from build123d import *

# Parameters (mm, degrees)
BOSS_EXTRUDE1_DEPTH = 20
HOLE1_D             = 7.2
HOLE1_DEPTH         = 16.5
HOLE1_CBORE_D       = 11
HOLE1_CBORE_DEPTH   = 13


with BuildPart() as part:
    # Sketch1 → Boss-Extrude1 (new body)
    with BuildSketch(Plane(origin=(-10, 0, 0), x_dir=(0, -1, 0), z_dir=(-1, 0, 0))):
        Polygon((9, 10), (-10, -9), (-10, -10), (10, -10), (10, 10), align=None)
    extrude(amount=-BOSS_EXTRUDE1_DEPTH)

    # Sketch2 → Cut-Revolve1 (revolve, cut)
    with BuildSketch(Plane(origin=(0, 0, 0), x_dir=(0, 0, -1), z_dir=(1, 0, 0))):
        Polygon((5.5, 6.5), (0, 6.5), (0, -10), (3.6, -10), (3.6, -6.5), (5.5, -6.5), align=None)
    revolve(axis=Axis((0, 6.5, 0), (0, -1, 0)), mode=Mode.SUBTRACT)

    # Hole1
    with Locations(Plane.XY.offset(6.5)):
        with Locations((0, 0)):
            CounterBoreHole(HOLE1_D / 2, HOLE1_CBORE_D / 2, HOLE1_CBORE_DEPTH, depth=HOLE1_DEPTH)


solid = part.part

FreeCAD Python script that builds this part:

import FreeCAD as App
import Part
import Sketcher


def add_polygon(sketch, points):
    """Adds a closed chain of lines whose ends are joined by coincident constraints."""
    first, n = sketch.GeometryCount, len(points)
    for a, b in zip(points, points[1:] + points[:1]):
        sketch.addGeometry(Part.LineSegment(App.Vector(*a, 0), App.Vector(*b, 0)), False)
    for i in range(n):
        sketch.addConstraint(Sketcher.Constraint("Coincident", first + i, 2, first + (i + 1) % n, 1))

doc = App.newDocument("Part")
body = doc.addObject("PartDesign::Body", "Body")

# Sketch on YZ plane
sketch1 = doc.addObject("Sketcher::SketchObject", "Sketch")
body.addObject(sketch1)
sketch1.AttachmentSupport = (doc.YZ_Plane, [""])
sketch1.MapMode = "FlatFace"
sketch1.AttachmentOffset = App.Placement(App.Vector(0, 0, -10), App.Rotation())
add_polygon(sketch1, [(-9, 10), (10, -9), (10, -10), (-10, -10), (-10, 10)])  # lines 0-4
sketch1.addConstraint([
    Sketcher.Constraint("Vertical", 1),
    Sketcher.Constraint("Horizontal", 2),
    Sketcher.Constraint("Vertical", 3),
    Sketcher.Constraint("Horizontal", 4),
    Sketcher.Constraint("Symmetric", 1, 2, 3, 2, -1, 1),
    Sketcher.Constraint("Equal", 4, 1),
    Sketcher.Constraint("Equal", 2, 3),
    Sketcher.Constraint("DistanceX", 2, 2, 2, 1, 20.0),
    Sketcher.Constraint("DistanceX", 4, 1, 4, 2, 1.0),
])
pad1 = doc.addObject("PartDesign::Pad", "Pad")
body.addObject(pad1)
pad1.Profile = sketch1
pad1.Length = 20

# Sketch on YZ plane
sketch2 = doc.addObject("Sketcher::SketchObject", "Sketch001")
body.addObject(sketch2)
sketch2.AttachmentSupport = (doc.YZ_Plane, [""])
sketch2.MapMode = "FlatFace"
add_polygon(sketch2, [(6.5, -5.5), (6.5, 0), (-10, 0), (-10, -3.6), (-6.5, -3.6), (-6.5, -5.5)])  # lines 0-5
sketch2.addConstraint([
    Sketcher.Constraint("Vertical", 0),
    Sketcher.Constraint("Horizontal", 1),
    Sketcher.Constraint("Vertical", 2),
    Sketcher.Constraint("Horizontal", 3),
    Sketcher.Constraint("Vertical", 4),
    Sketcher.Constraint("Horizontal", 5),
    Sketcher.Constraint("PointOnObject", 0, 2, -1),
    Sketcher.Constraint("DistanceX", 5, 1, 5, 2, 13.0),
    Sketcher.Constraint("DistanceX", 1, 2, 1, 1, 16.5),
    Sketcher.Constraint("DistanceY", 0, 1, 0, 2, 5.5),
    Sketcher.Constraint("DistanceY", 2, 2, 2, 1, 3.6),
    Sketcher.Constraint("DistanceX", 1, 2, -1, 1, 10.0),
])
groove = doc.addObject("PartDesign::Groove", "Groove")
body.addObject(groove)
groove.Profile = sketch2
groove.ReferenceAxis = (sketch2, ["H_Axis"])
groove.Angle = 360

# Sketch on XY plane
sketch3 = doc.addObject("Sketcher::SketchObject", "Sketch002")
body.addObject(sketch3)
sketch3.AttachmentSupport = (doc.XY_Plane, [""])
sketch3.MapMode = "FlatFace"
sketch3.AttachmentOffset = App.Placement(App.Vector(0, 0, 6.5), App.Rotation())
sketch3.addGeometry(Part.Circle(App.Vector(0, 0, 0), App.Vector(0, 0, 1), 3.6), False)
sketch3.addConstraint([
    Sketcher.Constraint("Coincident", 0, 3, -1, 1),
    Sketcher.Constraint("Diameter", 0, 7.2),
])
doc.recompute()
hole = doc.addObject("PartDesign::Hole", "Hole")
body.addObject(hole)
hole.Profile = sketch3
hole.ThreadType = "None"
hole.Diameter = 7.2
hole.DepthType = "Dimension"
hole.Depth = 16.5
hole.DrillPoint = "Flat"
hole.HoleCutType = "Counterbore"
hole.HoleCutDiameter = 11
hole.HoleCutDepth = 13

doc.recompute()
